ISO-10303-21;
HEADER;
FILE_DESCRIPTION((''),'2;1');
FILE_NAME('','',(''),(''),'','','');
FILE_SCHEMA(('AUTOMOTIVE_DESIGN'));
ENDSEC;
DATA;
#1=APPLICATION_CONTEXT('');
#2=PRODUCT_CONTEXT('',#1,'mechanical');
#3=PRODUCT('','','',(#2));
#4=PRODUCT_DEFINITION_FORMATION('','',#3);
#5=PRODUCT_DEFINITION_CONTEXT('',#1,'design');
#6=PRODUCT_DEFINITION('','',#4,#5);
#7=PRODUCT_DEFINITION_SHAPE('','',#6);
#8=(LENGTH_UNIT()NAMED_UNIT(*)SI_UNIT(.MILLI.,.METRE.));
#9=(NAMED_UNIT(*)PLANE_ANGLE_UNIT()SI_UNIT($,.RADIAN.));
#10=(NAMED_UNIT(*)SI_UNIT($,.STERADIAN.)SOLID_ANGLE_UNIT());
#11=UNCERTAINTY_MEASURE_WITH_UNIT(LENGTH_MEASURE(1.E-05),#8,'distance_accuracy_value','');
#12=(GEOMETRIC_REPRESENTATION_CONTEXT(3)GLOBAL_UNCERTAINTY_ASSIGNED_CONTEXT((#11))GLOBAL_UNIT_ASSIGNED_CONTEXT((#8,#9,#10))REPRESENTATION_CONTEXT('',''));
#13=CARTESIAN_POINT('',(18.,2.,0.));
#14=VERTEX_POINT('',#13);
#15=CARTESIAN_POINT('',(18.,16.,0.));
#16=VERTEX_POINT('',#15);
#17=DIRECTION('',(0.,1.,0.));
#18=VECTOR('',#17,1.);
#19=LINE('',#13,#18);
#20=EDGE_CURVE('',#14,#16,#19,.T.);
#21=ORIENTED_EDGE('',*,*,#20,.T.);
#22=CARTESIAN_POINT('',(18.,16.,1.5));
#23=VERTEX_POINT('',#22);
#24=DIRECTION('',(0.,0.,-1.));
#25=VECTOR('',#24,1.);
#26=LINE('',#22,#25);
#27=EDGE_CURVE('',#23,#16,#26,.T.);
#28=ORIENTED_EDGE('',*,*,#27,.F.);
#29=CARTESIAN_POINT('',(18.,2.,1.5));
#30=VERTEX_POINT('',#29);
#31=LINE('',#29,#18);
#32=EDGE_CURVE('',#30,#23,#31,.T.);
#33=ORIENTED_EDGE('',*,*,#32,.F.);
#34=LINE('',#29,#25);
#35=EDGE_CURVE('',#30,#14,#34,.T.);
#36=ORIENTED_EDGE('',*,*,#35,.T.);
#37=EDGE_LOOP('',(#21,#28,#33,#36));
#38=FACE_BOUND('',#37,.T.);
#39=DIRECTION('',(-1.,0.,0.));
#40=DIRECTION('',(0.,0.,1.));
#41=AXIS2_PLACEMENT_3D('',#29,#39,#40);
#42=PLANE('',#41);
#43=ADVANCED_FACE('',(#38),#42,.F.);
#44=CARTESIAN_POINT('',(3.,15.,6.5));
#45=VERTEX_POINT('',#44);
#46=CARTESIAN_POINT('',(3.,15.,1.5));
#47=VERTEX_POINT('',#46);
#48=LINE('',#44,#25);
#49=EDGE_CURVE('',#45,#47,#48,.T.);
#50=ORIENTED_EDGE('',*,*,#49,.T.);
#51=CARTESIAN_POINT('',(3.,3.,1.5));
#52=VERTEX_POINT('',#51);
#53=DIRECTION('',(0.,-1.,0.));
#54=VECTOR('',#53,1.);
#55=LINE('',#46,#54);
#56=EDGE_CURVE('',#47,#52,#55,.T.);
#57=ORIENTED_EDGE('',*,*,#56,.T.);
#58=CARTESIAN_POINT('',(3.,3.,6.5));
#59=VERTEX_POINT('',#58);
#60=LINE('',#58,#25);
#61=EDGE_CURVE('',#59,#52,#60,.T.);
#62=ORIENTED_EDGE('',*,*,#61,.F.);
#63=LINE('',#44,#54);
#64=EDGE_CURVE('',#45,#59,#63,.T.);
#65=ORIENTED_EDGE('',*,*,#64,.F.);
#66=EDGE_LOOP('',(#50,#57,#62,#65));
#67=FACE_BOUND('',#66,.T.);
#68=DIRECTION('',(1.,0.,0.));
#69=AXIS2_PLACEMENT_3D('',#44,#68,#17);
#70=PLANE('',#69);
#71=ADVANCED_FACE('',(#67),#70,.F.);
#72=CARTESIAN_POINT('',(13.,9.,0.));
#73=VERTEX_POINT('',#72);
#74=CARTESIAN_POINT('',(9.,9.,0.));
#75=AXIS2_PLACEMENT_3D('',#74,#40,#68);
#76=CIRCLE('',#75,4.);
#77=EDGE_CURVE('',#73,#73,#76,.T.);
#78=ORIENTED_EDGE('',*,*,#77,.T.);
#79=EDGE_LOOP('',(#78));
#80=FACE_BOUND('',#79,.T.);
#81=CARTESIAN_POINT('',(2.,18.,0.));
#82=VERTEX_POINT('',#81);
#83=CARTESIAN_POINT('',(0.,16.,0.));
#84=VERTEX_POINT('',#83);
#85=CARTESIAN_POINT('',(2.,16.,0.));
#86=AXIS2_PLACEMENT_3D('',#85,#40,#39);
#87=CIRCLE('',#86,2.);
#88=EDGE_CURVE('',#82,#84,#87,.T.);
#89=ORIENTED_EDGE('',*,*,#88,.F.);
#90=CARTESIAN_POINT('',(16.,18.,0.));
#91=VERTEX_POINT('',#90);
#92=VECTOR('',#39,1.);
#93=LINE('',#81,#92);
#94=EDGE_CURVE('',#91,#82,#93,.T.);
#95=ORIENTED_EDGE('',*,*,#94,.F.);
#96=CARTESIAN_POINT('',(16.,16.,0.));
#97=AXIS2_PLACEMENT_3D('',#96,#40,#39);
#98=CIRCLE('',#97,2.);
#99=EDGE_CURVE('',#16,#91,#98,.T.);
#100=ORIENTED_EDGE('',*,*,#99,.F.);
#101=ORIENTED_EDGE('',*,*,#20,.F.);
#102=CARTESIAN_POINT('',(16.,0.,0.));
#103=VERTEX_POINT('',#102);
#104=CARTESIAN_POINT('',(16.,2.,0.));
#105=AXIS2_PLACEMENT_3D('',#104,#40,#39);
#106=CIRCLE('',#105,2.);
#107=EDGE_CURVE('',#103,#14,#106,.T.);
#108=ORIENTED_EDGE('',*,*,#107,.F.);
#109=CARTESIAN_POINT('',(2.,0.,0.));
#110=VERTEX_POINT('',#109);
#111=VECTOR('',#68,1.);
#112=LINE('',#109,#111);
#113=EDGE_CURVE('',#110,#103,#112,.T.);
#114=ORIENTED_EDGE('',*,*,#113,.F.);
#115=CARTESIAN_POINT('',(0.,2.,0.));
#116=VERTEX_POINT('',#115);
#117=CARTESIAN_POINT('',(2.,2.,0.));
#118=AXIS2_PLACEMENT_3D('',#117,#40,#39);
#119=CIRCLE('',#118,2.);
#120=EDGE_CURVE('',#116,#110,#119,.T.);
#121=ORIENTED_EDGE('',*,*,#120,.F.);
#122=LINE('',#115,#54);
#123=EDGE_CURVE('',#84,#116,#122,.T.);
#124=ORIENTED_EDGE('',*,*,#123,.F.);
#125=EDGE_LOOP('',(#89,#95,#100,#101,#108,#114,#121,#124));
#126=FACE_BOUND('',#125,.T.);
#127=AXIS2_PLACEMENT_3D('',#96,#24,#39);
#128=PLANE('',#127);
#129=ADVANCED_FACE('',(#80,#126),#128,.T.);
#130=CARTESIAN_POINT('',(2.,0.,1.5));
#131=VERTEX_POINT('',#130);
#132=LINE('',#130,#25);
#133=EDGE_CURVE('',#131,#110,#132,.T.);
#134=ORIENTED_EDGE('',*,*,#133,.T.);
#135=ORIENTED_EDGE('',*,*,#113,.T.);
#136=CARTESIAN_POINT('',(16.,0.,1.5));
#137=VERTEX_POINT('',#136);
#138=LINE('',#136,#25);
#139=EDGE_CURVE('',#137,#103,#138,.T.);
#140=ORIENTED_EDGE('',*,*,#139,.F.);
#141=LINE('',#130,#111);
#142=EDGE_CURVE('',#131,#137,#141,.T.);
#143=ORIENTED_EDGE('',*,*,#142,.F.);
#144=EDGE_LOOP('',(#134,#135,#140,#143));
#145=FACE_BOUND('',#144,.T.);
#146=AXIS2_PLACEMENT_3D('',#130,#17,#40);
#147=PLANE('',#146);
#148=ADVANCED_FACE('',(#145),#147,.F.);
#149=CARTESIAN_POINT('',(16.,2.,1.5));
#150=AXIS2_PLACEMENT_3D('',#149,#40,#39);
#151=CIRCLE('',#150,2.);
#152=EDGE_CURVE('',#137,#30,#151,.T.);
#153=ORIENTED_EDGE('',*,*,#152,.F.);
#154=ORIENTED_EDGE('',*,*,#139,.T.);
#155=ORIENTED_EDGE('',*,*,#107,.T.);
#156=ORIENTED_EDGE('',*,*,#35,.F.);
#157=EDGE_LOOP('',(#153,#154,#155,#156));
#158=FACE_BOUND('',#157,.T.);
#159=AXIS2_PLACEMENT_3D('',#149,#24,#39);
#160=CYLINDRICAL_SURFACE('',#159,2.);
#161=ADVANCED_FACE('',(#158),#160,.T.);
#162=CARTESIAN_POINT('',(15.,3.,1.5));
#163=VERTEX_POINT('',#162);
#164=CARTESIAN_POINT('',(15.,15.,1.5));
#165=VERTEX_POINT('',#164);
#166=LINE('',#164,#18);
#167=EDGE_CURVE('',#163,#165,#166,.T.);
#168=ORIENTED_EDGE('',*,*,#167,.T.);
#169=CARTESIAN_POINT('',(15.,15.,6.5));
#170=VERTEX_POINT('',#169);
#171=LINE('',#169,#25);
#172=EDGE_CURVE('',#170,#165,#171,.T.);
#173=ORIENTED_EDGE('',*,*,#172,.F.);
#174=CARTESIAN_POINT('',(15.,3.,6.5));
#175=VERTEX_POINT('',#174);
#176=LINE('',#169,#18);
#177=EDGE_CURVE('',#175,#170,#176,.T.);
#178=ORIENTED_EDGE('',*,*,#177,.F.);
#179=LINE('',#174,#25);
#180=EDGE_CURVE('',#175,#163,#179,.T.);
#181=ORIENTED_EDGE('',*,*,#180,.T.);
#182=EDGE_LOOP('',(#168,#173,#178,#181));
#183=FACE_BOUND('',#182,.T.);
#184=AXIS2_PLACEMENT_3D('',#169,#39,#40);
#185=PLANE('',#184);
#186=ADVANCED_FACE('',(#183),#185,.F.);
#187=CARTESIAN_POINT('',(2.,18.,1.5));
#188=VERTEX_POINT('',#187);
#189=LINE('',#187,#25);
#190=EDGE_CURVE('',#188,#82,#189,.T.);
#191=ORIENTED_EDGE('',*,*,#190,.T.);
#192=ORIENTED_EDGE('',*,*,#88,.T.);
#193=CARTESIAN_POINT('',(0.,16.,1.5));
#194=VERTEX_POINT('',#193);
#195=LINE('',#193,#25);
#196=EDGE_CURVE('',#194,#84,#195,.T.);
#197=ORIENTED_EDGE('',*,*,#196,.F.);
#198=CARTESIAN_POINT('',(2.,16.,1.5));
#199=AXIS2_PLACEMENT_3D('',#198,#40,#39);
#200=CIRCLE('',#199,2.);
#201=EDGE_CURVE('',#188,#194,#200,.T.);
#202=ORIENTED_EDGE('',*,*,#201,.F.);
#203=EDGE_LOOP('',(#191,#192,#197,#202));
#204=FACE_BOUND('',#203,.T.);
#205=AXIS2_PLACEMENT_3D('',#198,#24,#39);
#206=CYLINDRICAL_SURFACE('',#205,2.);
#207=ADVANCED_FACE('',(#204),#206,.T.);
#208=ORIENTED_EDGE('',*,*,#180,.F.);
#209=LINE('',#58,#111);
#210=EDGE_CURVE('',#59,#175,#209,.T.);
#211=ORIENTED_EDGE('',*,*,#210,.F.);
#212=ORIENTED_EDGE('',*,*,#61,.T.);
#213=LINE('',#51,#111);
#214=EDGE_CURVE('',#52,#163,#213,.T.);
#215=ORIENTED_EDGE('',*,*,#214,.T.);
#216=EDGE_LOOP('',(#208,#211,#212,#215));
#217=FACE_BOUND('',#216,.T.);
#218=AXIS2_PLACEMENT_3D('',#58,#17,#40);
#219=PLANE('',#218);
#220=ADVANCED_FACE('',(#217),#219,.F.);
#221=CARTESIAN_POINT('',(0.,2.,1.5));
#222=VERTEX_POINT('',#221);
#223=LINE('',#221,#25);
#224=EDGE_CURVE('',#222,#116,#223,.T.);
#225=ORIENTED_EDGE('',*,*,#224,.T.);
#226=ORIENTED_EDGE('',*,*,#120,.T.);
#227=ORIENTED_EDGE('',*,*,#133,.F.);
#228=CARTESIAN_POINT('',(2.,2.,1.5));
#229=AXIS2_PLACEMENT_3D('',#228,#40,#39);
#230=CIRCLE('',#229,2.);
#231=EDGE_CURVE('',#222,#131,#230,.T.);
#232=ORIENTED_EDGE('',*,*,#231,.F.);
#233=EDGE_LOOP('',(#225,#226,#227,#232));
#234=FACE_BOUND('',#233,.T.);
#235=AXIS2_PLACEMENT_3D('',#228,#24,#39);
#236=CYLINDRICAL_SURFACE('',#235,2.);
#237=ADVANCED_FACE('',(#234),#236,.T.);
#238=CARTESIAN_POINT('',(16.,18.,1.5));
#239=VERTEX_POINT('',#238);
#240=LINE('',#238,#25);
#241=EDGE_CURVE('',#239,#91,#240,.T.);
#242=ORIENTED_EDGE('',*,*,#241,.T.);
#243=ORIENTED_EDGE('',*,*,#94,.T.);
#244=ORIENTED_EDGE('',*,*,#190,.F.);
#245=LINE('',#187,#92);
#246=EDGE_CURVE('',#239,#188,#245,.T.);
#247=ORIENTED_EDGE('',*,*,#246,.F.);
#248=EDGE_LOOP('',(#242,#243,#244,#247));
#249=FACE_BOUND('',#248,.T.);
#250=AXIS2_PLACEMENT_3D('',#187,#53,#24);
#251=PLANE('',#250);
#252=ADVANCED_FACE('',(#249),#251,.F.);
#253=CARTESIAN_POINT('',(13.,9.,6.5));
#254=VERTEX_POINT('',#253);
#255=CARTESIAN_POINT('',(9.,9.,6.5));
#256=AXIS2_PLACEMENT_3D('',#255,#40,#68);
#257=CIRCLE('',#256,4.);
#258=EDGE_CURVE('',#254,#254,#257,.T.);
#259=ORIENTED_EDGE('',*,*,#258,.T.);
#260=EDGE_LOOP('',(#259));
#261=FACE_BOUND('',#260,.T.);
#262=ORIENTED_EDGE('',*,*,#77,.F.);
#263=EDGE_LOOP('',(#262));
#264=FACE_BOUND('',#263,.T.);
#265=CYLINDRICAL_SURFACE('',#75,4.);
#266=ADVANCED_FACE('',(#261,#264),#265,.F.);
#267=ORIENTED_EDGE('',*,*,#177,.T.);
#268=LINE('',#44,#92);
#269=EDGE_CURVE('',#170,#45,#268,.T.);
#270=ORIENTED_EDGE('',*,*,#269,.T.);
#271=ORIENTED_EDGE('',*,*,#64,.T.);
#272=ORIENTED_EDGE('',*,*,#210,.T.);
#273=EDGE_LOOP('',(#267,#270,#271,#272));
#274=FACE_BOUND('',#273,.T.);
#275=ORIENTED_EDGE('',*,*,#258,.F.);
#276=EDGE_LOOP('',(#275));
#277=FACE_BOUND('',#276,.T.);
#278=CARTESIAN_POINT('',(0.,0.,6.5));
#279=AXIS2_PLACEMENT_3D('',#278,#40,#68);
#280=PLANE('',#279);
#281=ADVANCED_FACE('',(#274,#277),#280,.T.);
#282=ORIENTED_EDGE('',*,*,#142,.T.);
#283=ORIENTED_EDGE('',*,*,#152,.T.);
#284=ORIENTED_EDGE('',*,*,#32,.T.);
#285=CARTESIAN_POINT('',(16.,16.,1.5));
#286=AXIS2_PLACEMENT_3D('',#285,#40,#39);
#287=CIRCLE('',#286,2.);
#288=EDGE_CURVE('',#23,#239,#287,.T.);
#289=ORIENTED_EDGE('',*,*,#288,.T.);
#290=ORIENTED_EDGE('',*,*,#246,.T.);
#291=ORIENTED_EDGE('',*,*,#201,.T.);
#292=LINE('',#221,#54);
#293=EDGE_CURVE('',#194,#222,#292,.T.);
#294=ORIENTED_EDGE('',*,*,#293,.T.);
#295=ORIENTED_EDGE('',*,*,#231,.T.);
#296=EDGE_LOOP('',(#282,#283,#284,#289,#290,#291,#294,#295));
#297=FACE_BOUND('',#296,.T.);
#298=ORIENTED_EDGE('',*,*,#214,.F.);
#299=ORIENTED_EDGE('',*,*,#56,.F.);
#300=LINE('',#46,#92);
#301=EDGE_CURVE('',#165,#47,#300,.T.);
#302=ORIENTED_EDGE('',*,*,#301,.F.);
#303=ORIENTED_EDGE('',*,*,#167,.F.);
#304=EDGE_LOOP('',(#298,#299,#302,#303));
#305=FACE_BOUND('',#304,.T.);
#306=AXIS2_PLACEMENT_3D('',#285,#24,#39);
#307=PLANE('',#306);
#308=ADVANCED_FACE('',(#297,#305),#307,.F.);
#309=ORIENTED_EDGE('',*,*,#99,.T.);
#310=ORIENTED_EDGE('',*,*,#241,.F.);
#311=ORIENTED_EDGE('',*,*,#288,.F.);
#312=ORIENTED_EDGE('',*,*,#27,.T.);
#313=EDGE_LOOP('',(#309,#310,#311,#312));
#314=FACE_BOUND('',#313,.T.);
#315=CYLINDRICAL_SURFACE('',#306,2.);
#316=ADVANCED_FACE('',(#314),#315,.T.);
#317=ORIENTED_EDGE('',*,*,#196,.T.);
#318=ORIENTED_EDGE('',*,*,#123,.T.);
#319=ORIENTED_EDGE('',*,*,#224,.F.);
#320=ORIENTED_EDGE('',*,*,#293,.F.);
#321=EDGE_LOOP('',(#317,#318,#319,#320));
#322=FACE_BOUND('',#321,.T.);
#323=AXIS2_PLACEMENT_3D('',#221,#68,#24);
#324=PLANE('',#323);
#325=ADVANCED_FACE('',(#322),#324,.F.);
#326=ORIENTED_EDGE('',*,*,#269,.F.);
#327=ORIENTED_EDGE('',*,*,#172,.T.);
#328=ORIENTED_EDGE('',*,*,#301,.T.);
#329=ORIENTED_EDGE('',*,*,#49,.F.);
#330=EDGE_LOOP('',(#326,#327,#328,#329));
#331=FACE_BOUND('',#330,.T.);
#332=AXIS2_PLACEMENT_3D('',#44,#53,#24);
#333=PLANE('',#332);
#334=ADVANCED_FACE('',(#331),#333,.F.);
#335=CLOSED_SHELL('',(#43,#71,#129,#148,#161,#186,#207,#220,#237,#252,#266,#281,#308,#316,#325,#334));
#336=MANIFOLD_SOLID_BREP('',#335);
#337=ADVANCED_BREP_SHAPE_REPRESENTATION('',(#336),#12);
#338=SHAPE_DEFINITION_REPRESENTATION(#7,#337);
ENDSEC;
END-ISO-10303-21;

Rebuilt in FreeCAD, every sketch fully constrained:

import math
import FreeCAD as App
import Part
import Sketcher
from FreeCAD import Vector
Q = App.Units.Quantity

doc = App.newDocument("Part")
body = doc.addObject("PartDesign::Body", "Body")

# Sketch on XY plane
sketch1 = doc.addObject("Sketcher::SketchObject", "Sketch")
body.addObject(sketch1)
sketch1.AttachmentSupport = (doc.XY_Plane, [""])
sketch1.MapMode = "FlatFace"
sketch1.addGeometry([
    Part.LineSegment(Vector(2, 0, 0), Vector(16, 0, 0)),  # 0
    Part.ArcOfCircle(Part.Circle(Vector(16, 2, 0), Vector(0, 0, 1), 2), math.radians(-90), math.radians(0)),  # 1
    Part.LineSegment(Vector(18, 2, 0), Vector(18, 16, 0)),  # 2
    Part.ArcOfCircle(Part.Circle(Vector(16, 16, 0), Vector(0, 0, 1), 2), math.radians(0), math.radians(90)),  # 3
    Part.LineSegment(Vector(16, 18, 0), Vector(2, 18, 0)),  # 4
    Part.ArcOfCircle(Part.Circle(Vector(2, 16, 0), Vector(0, 0, 1), 2), math.radians(90), math.radians(180)),  # 5
    Part.LineSegment(Vector(0, 16, 0), Vector(0, 2, 0)),  # 6
    Part.ArcOfCircle(Part.Circle(Vector(2, 2, 0), Vector(0, 0, 1), 2), math.radians(-180), math.radians(-90)),  # 7
], False)
sketch1.addConstraint([
    Sketcher.Constraint("Tangent", 0, 2, 1, 1),
    Sketcher.Constraint("Tangent", 1, 2, 2, 1),
    Sketcher.Constraint("Tangent", 2, 2, 3, 1),
    Sketcher.Constraint("Tangent", 3, 2, 4, 1),
    Sketcher.Constraint("Tangent", 4, 2, 5, 1),
    Sketcher.Constraint("Tangent", 5, 2, 6, 1),
    Sketcher.Constraint("Tangent", 6, 2, 7, 1),
    Sketcher.Constraint("Tangent", 7, 2, 0, 1),
    Sketcher.Constraint("Horizontal", 0),
    Sketcher.Constraint("Vertical", 2),
    Sketcher.Constraint("Horizontal", 4),
    Sketcher.Constraint("Vertical", 6),
    Sketcher.Constraint("Equal", 1, 3),
    Sketcher.Constraint("Equal", 3, 5),
    Sketcher.Constraint("Equal", 5, 7),
    Sketcher.Constraint("PointOnObject", 0, 2, -1),
    Sketcher.Constraint("PointOnObject", 5, 2, -2),
    Sketcher.Constraint("Equal", 4, 2),
    Sketcher.Constraint("Radius", 1, Q("2 mm")),
    Sketcher.Constraint("DistanceX", 0, 1, 0, 2, Q("14 mm")),
])
pad1 = doc.addObject("PartDesign::Pad", "Pad")
body.addObject(pad1)
pad1.Profile = sketch1
pad1.Length = 1.5

# Sketch on XY plane
sketch2 = doc.addObject("Sketcher::SketchObject", "Sketch001")
body.addObject(sketch2)
sketch2.AttachmentSupport = (doc.XY_Plane, [""])
sketch2.MapMode = "FlatFace"
sketch2.AttachmentOffset = App.Placement(Vector(0, 0, 1.5), App.Rotation())
sketch2.addGeometry([
    Part.LineSegment(Vector(3, 15, 0), Vector(3, 3, 0)),
    Part.LineSegment(Vector(3, 3, 0), Vector(15, 3, 0)),
    Part.LineSegment(Vector(15, 3, 0), Vector(15, 15, 0)),
    Part.LineSegment(Vector(15, 15, 0), Vector(3, 15, 0)),
], False)
sketch2.addConstraint([
    Sketcher.Constraint("Coincident", 0, 2, 1, 1),
    Sketcher.Constraint("Coincident", 1, 2, 2, 1),
    Sketcher.Constraint("Coincident", 2, 2, 3, 1),
    Sketcher.Constraint("Coincident", 3, 2, 0, 1),
    Sketcher.Constraint("Vertical", 0),
    Sketcher.Constraint("Horizontal", 1),
    Sketcher.Constraint("Vertical", 2),
    Sketcher.Constraint("Horizontal", 3),
    Sketcher.Constraint("Equal", 3, 0),
    Sketcher.Constraint("DistanceX", 1, 1, 1, 2, Q("12 mm")),
    Sketcher.Constraint("DistanceX", -1, 1, 0, 2, Q("3 mm")),
    Sketcher.Constraint("DistanceY", -1, 1, 0, 2, Q("3 mm")),
])
pad2 = doc.addObject("PartDesign::Pad", "Pad001")
body.addObject(pad2)
pad2.Profile = sketch2
pad2.Length = 5

# Sketch on XY plane
sketch3 = doc.addObject("Sketcher::SketchObject", "Sketch002")
body.addObject(sketch3)
sketch3.AttachmentSupport = (doc.XY_Plane, [""])
sketch3.MapMode = "FlatFace"
sketch3.AttachmentOffset = App.Placement(Vector(0, 0, 6.5), App.Rotation())
sketch3.addGeometry(Part.Circle(Vector(9, 9, 0), Vector(0, 0, 1), 4), False)
sketch3.addConstraint([
    Sketcher.Constraint("Diameter", 0, Q("8 mm")),
    Sketcher.Constraint("DistanceX", -1, 1, 0, 3, Q("9 mm")),
    Sketcher.Constraint("DistanceY", -1, 1, 0, 3, Q("9 mm")),
])
pocket1 = doc.addObject("PartDesign::Pocket", "Pocket")
body.addObject(pocket1)
pocket1.Profile = sketch3
pocket1.Type = "ThroughAll"

doc.recompute()
